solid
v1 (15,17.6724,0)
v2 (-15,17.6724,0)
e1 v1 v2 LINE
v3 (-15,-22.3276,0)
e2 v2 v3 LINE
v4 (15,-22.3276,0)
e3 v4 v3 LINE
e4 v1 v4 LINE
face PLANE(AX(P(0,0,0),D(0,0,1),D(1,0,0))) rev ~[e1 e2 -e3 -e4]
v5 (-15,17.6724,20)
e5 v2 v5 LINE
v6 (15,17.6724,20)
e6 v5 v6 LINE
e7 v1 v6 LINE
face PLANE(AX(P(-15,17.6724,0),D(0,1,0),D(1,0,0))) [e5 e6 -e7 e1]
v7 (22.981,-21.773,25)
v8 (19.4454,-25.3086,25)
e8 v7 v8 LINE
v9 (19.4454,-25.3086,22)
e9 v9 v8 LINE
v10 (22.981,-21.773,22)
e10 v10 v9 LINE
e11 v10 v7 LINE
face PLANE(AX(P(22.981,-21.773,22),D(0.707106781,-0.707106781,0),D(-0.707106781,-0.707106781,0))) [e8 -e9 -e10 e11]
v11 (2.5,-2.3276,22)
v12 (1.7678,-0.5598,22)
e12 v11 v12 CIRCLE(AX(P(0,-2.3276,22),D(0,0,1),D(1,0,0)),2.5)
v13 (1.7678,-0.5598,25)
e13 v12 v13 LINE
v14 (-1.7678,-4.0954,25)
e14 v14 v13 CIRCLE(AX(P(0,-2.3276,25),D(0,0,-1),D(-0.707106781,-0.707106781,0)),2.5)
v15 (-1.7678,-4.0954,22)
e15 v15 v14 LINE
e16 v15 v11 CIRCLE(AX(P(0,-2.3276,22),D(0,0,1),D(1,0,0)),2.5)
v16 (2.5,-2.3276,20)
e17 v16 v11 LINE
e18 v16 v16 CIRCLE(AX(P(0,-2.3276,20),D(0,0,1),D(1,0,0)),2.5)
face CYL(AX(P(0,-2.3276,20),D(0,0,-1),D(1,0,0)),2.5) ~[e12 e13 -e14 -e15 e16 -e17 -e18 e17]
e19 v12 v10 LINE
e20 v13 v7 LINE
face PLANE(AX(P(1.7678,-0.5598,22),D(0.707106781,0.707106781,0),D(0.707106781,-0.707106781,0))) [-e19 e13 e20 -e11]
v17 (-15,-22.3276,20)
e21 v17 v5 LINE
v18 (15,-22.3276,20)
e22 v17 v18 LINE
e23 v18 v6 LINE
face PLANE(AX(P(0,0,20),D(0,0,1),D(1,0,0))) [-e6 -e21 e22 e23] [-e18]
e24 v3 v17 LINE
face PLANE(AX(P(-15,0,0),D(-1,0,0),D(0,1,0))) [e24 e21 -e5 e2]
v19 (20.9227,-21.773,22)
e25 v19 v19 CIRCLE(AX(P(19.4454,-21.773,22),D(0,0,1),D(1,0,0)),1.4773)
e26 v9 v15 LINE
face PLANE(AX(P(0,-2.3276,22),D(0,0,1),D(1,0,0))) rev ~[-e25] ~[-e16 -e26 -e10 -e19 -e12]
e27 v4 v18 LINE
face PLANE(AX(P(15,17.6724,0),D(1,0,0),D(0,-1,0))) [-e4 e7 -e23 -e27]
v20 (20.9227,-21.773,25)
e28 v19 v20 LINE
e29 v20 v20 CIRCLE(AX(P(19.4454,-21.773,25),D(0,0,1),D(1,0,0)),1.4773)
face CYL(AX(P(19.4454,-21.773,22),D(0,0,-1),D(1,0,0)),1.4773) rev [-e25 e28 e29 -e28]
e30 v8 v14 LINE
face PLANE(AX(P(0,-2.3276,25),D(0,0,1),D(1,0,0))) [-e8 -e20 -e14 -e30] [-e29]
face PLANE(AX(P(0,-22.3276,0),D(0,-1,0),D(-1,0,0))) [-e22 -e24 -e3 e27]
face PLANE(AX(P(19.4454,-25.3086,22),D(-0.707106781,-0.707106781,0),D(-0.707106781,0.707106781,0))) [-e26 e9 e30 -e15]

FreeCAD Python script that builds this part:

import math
import FreeCAD as App
import Part
import Sketcher
from FreeCAD import Vector
Q = App.Units.Quantity


def add_polygon(sketch, points):
    """Adds a closed chain of lines whose ends are joined by coincident constraints."""
    first, n = sketch.GeometryCount, len(points)
    for a, b in zip(points, points[1:] + points[:1]):
        sketch.addGeometry(Part.LineSegment(App.Vector(*a, 0), App.Vector(*b, 0)), False)
    for i in range(n):
        sketch.addConstraint(Sketcher.Constraint("Coincident", first + i, 2, first + (i + 1) % n, 1))

doc = App.newDocument("Part")
body = doc.addObject("PartDesign::Body", "Body")

# Sketch on XY plane
sketch1 = body.newObject("Sketcher::SketchObject", "Sketch")
sketch1.AttachmentSupport = (doc.getObject("XY_Plane"), [""])
sketch1.MapMode = "FlatFace"
add_polygon(sketch1, [(-15, 18), (-15, -22), (15, -22), (15, 18)])  # lines 0-3
sketch1.addConstraint([
    Sketcher.Constraint("Vertical", 0),
    Sketcher.Constraint("Horizontal", 1),
    Sketcher.Constraint("Vertical", 2),
    Sketcher.Constraint("Horizontal", 3),
    Sketcher.Constraint("DistanceX", 1, 1, 1, 2, Q("30 mm")),
    Sketcher.Constraint("DistanceY", 0, 2, 0, 1, Q("40 mm")),
    Sketcher.Constraint("DistanceX", 0, 2, -1, 1, Q("15 mm")),
    Sketcher.Constraint("DistanceY", 0, 2, -1, 1, Q("22.3276 mm")),
])
pad1 = body.newObject("PartDesign::Pad", "Pad")
pad1.Profile = sketch1
pad1.Length = 20

# Sketch on XY plane
sketch2 = body.newObject("Sketcher::SketchObject", "Sketch001")
sketch2.AttachmentSupport = (doc.getObject("XY_Plane"), [""])
sketch2.MapMode = "FlatFace"
sketch2.AttachmentOffset = App.Placement(Vector(0, 0, 20), App.Rotation())
sketch2.addGeometry(Part.Circle(Vector(0, -2.3, 0), Vector(0, 0, 1), 2.5), False)
sketch2.addConstraint([
    Sketcher.Constraint("PointOnObject", 0, 3, -2),
    Sketcher.Constraint("Diameter", 0, Q("5 mm")),
    Sketcher.Constraint("DistanceY", 0, 3, -1, 1, Q("2.3276 mm")),
])
pad2 = body.newObject("PartDesign::Pad", "Pad001")
pad2.Profile = sketch2
pad2.Length = 2

# Sketch on XY plane
sketch3 = body.newObject("Sketcher::SketchObject", "Sketch002")
sketch3.AttachmentSupport = (doc.getObject("XY_Plane"), [""])
sketch3.MapMode = "FlatFace"
sketch3.AttachmentOffset = App.Placement(Vector(0, 0, 22), App.Rotation())
sketch3.addGeometry([
    Part.ArcOfCircle(Part.Circle(Vector(0, -2.3, 0), Vector(0, 0, 1), 2.5), math.radians(45), math.radians(225)),  # 0
    Part.LineSegment(Vector(-1.8, -4.1, 0), Vector(19.4, -25.3, 0)),  # 1
    Part.LineSegment(Vector(19.4, -25.3, 0), Vector(23, -21.8, 0)),  # 2
    Part.LineSegment(Vector(23, -21.8, 0), Vector(1.8, -0.6, 0)),  # 3
    Part.Circle(Vector(19.4, -21.8, 0), Vector(0, 0, 1), 1.5),  # 4
], False)
sketch3.addConstraint([
    Sketcher.Constraint("Tangent", 0, 2, 1, 1),
    Sketcher.Constraint("Coincident", 1, 2, 2, 1),
    Sketcher.Constraint("Coincident", 2, 2, 3, 1),
    Sketcher.Constraint("Tangent", 3, 2, 0, 1),
    Sketcher.Constraint("PointOnObject", 0, 3, -2),
    Sketcher.Constraint("Perpendicular", 1, 2),
    Sketcher.Constraint("Perpendicular", 2, 3),
    Sketcher.Constraint("Horizontal", 4, 3, 2, 2),
    Sketcher.Constraint("Vertical", 4, 3, 1, 2),
    Sketcher.Constraint("Radius", 0, Q("2.5 mm")),
    Sketcher.Constraint("Angle", 1, Q("-45 deg")),
    Sketcher.Constraint("Distance", 1, Q("30 mm")),
    Sketcher.Constraint("Diameter", 4, Q("2.9546 mm")),
    Sketcher.Constraint("DistanceY", 4, 3, -1, 1, Q("21.773 mm")),
])
pad3 = body.newObject("PartDesign::Pad", "Pad002")
pad3.Profile = sketch3
pad3.Length = 3

doc.recompute()
